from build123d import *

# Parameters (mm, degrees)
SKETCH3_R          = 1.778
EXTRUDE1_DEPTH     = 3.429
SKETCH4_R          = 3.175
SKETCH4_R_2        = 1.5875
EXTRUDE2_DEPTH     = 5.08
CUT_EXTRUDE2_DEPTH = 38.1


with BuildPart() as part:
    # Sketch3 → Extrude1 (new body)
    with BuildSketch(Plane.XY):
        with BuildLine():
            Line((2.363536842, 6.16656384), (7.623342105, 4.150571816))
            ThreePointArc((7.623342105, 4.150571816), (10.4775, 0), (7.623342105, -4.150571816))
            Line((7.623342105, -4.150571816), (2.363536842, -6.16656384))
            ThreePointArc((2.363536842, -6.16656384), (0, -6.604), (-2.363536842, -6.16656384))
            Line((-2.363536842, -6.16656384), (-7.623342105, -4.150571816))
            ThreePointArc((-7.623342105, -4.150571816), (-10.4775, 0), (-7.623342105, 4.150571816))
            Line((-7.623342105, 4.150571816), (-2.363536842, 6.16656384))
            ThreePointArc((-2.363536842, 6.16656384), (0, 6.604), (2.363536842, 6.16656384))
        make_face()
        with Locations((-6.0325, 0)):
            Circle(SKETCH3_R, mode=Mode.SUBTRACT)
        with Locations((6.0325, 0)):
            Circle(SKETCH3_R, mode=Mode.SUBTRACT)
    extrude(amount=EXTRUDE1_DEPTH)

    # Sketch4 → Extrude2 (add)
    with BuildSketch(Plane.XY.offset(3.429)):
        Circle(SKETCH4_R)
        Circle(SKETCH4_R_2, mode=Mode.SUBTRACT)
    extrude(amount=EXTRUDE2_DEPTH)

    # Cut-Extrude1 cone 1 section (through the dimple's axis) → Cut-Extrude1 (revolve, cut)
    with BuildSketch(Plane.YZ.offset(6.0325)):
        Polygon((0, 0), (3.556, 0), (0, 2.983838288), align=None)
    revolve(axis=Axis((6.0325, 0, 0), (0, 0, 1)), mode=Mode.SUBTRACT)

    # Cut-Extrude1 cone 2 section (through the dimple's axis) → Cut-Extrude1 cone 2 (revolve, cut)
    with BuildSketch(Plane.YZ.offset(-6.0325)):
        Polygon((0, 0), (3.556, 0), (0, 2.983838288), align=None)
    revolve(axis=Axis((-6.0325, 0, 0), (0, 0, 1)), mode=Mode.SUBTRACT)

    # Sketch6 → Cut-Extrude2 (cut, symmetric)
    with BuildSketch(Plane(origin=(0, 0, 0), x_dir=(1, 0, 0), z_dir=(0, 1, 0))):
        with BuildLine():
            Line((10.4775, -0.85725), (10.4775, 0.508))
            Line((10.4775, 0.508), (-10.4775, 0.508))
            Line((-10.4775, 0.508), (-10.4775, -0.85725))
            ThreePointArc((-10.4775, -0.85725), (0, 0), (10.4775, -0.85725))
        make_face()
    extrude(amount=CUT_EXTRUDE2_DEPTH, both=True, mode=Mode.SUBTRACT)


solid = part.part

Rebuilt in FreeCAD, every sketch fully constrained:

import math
import FreeCAD as App
import Part
import Sketcher
Q = App.Units.Quantity


def add_polygon(sketch, points):
    """Adds a closed chain of lines whose ends are joined by coincident constraints."""
    first, n = sketch.GeometryCount, len(points)
    for a, b in zip(points, points[1:] + points[:1]):
        sketch.addGeometry(Part.LineSegment(App.Vector(*a, 0), App.Vector(*b, 0)), False)
    for i in range(n):
        sketch.addConstraint(Sketcher.Constraint("Coincident", first + i, 2, first + (i + 1) % n, 1))

doc = App.newDocument("Part")
body = doc.addObject("PartDesign::Body", "Body")

# Sketch on XY plane
sketch1 = body.newObject("Sketcher::SketchObject", "Sketch")
sketch1.AttachmentSupport = (doc.getObject("XY_Plane"), [""])
sketch1.MapMode = "FlatFace"
sketch1.addGeometry(Part.LineSegment(App.Vector(7.6, 4.2, 0), App.Vector(2.4, 6.2, 0)), False)
sketch1.addGeometry(Part.ArcOfCircle(Part.Circle(App.Vector(0, 0, 0), App.Vector(0, 0, 1), 6.6), math.radians(69), math.radians(111)), False)
sketch1.addGeometry(Part.LineSegment(App.Vector(-2.4, 6.2, 0), App.Vector(-7.6, 4.2, 0)), False)
sketch1.addGeometry(Part.ArcOfCircle(Part.Circle(App.Vector(-6, 0, 0), App.Vector(0, 0, 1), 4.4), math.radians(111), math.radians(249)), False)
sketch1.addGeometry(Part.LineSegment(App.Vector(-7.6, -4.2, 0), App.Vector(-2.4, -6.2, 0)), False)
sketch1.addGeometry(Part.ArcOfCircle(Part.Circle(App.Vector(0, 0, 0), App.Vector(0, 0, 1), 6.6), math.radians(-111), math.radians(-69)), False)
sketch1.addGeometry(Part.LineSegment(App.Vector(2.4, -6.2, 0), App.Vector(7.6, -4.2, 0)), False)
sketch1.addGeometry(Part.ArcOfCircle(Part.Circle(App.Vector(6, 0, 0), App.Vector(0, 0, 1), 4.4), math.radians(-69), math.radians(69)), False)
sketch1.addGeometry(Part.Circle(App.Vector(6, 0, 0), App.Vector(0, 0, 1), 1.8), False)
sketch1.addGeometry(Part.Circle(App.Vector(-6, 0, 0), App.Vector(0, 0, 1), 1.8), False)
sketch1.addConstraint(Sketcher.Constraint("Tangent", 0, 2, 1, 1))
sketch1.addConstraint(Sketcher.Constraint("Tangent", 1, 2, 2, 1))
sketch1.addConstraint(Sketcher.Constraint("Tangent", 2, 2, 3, 1))
sketch1.addConstraint(Sketcher.Constraint("Tangent", 3, 2, 4, 1))
sketch1.addConstraint(Sketcher.Constraint("Tangent", 4, 2, 5, 1))
sketch1.addConstraint(Sketcher.Constraint("Tangent", 5, 2, 6, 1))
sketch1.addConstraint(Sketcher.Constraint("Tangent", 6, 2, 7, 1))
sketch1.addConstraint(Sketcher.Constraint("Tangent", 7, 2, 0, 1))
sketch1.addConstraint(Sketcher.Constraint("Coincident", 1, 3, -1, 1))
sketch1.addConstraint(Sketcher.Constraint("Coincident", 5, 3, -1, 1))
sketch1.addConstraint(Sketcher.Constraint("Coincident", 8, 3, 7, 3))
sketch1.addConstraint(Sketcher.Constraint("Coincident", 9, 3, 3, 3))
sketch1.addConstraint(Sketcher.Constraint("Equal", 1, 5))
sketch1.addConstraint(Sketcher.Constraint("Equal", 3, 7))
sketch1.addConstraint(Sketcher.Constraint("Equal", 8, 9))
sketch1.addConstraint(Sketcher.Constraint("Symmetric", 3, 3, 7, 3, -1, 1))
sketch1.addConstraint(Sketcher.Constraint("PointOnObject", 3, 3, -1))
sketch1.addConstraint(Sketcher.Constraint("Diameter", 8, Q("0.14 in")))
sketch1.addConstraint(Sketcher.Constraint("Radius", 1, Q("0.26 in")))
sketch1.addConstraint(Sketcher.Constraint("Radius", 3, Q("0.175 in")))
sketch1.addConstraint(Sketcher.Constraint("DistanceX", 3, 3, 7, 3, Q("0.475 in")))
pad1 = body.newObject("PartDesign::Pad", "Pad")
pad1.Profile = sketch1
pad1.Length = Q("0.135 in")

# Sketch on XY plane
sketch2 = body.newObject("Sketcher::SketchObject", "Sketch001")
sketch2.AttachmentSupport = (doc.getObject("XY_Plane"), [""])
sketch2.MapMode = "FlatFace"
sketch2.AttachmentOffset = App.Placement(App.Vector(0, 0, 0.135 * 25.4), App.Rotation())
sketch2.addGeometry(Part.Circle(App.Vector(0, 0, 0), App.Vector(0, 0, 1), 3.2), False)
sketch2.addGeometry(Part.Circle(App.Vector(0, 0, 0), App.Vector(0, 0, 1), 1.6), False)
sketch2.addConstraint(Sketcher.Constraint("Coincident", 0, 3, -1, 1))
sketch2.addConstraint(Sketcher.Constraint("Coincident", 1, 3, -1, 1))
sketch2.addConstraint(Sketcher.Constraint("Diameter", 0, Q("0.25 in")))
sketch2.addConstraint(Sketcher.Constraint("Diameter", 1, Q("0.125 in")))
pad2 = body.newObject("PartDesign::Pad", "Pad001")
pad2.Profile = sketch2
pad2.Length = Q("0.2 in")

# Sketch on YZ plane
sketch3 = body.newObject("Sketcher::SketchObject", "Sketch002")
sketch3.AttachmentSupport = (doc.getObject("YZ_Plane"), [""])
sketch3.MapMode = "FlatFace"
sketch3.AttachmentOffset = App.Placement(App.Vector(0, 0, 0.2375 * 25.4), App.Rotation())
add_polygon(sketch3, [(0, 0), (3.6, 0), (0, 3)])  # lines 0-2
sketch3.addConstraint(Sketcher.Constraint("Horizontal", 0))
sketch3.addConstraint(Sketcher.Constraint("Vertical", 2))
sketch3.addConstraint(Sketcher.Constraint("Coincident", 2, 2, -1, 1))
sketch3.addConstraint(Sketcher.Constraint("Angle", 1, Q("140 deg")))
sketch3.addConstraint(Sketcher.Constraint("DistanceX", 0, 1, 0, 2, Q("0.14 in")))
groove = body.newObject("PartDesign::Groove", "Groove")
groove.Profile = sketch3
groove.ReferenceAxis = (sketch3, ["V_Axis"])
groove.Angle = 360

# Sketch on YZ plane
sketch4 = body.newObject("Sketcher::SketchObject", "Sketch003")
sketch4.AttachmentSupport = (doc.getObject("YZ_Plane"), [""])
sketch4.MapMode = "FlatFace"
sketch4.AttachmentOffset = App.Placement(App.Vector(0, 0, -0.2375 * 25.4), App.Rotation())
add_polygon(sketch4, [(0, 0), (3.6, 0), (0, 3)])  # lines 0-2
sketch4.addConstraint(Sketcher.Constraint("Horizontal", 0))
sketch4.addConstraint(Sketcher.Constraint("Vertical", 2))
sketch4.addConstraint(Sketcher.Constraint("Coincident", 2, 2, -1, 1))
sketch4.addConstraint(Sketcher.Constraint("Angle", 1, Q("140 deg")))
sketch4.addConstraint(Sketcher.Constraint("DistanceX", 0, 1, 0, 2, Q("0.14 in")))
groove2 = body.newObject("PartDesign::Groove", "Groove001")
groove2.Profile = sketch4
groove2.ReferenceAxis = (sketch4, ["V_Axis"])
groove2.Angle = 360

# Sketch on XZ plane
sketch5 = body.newObject("Sketcher::SketchObject", "Sketch004")
sketch5.AttachmentSupport = (doc.getObject("XZ_Plane"), [""])
sketch5.MapMode = "FlatFace"
sketch5.addGeometry(Part.LineSegment(App.Vector(10.5, 0.9, 0), App.Vector(10.5, -0.5, 0)), False)
sketch5.addGeometry(Part.LineSegment(App.Vector(10.5, -0.5, 0), App.Vector(-10.5, -0.5, 0)), False)
sketch5.addGeometry(Part.LineSegment(App.Vector(-10.5, -0.5, 0), App.Vector(-10.5, 0.9, 0)), False)
sketch5.addGeometry(Part.ArcOfCircle(Part.Circle(App.Vector(0, 64.5, 0), App.Vector(0, 0, 1), 64.5), math.radians(-99.35), math.radians(-80.65)), False)
sketch5.addConstraint(Sketcher.Constraint("Coincident", 0, 2, 1, 1))
sketch5.addConstraint(Sketcher.Constraint("Coincident", 1, 2, 2, 1))
sketch5.addConstraint(Sketcher.Constraint("Coincident", 2, 2, 3, 1))
sketch5.addConstraint(Sketcher.Constraint("Coincident", 3, 2, 0, 1))
sketch5.addConstraint(Sketcher.Constraint("Vertical", 0))
sketch5.addConstraint(Sketcher.Constraint("Horizontal", 1))
sketch5.addConstraint(Sketcher.Constraint("Vertical", 2))
sketch5.addConstraint(Sketcher.Constraint("Symmetric", 2, 2, 3, 2, -2))
sketch5.addConstraint(Sketcher.Constraint("DistanceX", 1, 2, 1, 1, Q("0.825 in")))
sketch5.addConstraint(Sketcher.Constraint("DistanceY", 0, 2, -1, 1, Q("0.02 in")))
sketch5.addConstraint(Sketcher.Constraint("Radius", 3, Q("64.457792 mm")))
sketch5.addConstraint(Sketcher.Constraint("DistanceY", 0, 2, 0, 1, Q("1.36525 mm")))
pocket1 = body.newObject("PartDesign::Pocket", "Pocket")
pocket1.Profile = sketch5
pocket1.Length = Q("3 in")
pocket1.Midplane = True

doc.recompute()
